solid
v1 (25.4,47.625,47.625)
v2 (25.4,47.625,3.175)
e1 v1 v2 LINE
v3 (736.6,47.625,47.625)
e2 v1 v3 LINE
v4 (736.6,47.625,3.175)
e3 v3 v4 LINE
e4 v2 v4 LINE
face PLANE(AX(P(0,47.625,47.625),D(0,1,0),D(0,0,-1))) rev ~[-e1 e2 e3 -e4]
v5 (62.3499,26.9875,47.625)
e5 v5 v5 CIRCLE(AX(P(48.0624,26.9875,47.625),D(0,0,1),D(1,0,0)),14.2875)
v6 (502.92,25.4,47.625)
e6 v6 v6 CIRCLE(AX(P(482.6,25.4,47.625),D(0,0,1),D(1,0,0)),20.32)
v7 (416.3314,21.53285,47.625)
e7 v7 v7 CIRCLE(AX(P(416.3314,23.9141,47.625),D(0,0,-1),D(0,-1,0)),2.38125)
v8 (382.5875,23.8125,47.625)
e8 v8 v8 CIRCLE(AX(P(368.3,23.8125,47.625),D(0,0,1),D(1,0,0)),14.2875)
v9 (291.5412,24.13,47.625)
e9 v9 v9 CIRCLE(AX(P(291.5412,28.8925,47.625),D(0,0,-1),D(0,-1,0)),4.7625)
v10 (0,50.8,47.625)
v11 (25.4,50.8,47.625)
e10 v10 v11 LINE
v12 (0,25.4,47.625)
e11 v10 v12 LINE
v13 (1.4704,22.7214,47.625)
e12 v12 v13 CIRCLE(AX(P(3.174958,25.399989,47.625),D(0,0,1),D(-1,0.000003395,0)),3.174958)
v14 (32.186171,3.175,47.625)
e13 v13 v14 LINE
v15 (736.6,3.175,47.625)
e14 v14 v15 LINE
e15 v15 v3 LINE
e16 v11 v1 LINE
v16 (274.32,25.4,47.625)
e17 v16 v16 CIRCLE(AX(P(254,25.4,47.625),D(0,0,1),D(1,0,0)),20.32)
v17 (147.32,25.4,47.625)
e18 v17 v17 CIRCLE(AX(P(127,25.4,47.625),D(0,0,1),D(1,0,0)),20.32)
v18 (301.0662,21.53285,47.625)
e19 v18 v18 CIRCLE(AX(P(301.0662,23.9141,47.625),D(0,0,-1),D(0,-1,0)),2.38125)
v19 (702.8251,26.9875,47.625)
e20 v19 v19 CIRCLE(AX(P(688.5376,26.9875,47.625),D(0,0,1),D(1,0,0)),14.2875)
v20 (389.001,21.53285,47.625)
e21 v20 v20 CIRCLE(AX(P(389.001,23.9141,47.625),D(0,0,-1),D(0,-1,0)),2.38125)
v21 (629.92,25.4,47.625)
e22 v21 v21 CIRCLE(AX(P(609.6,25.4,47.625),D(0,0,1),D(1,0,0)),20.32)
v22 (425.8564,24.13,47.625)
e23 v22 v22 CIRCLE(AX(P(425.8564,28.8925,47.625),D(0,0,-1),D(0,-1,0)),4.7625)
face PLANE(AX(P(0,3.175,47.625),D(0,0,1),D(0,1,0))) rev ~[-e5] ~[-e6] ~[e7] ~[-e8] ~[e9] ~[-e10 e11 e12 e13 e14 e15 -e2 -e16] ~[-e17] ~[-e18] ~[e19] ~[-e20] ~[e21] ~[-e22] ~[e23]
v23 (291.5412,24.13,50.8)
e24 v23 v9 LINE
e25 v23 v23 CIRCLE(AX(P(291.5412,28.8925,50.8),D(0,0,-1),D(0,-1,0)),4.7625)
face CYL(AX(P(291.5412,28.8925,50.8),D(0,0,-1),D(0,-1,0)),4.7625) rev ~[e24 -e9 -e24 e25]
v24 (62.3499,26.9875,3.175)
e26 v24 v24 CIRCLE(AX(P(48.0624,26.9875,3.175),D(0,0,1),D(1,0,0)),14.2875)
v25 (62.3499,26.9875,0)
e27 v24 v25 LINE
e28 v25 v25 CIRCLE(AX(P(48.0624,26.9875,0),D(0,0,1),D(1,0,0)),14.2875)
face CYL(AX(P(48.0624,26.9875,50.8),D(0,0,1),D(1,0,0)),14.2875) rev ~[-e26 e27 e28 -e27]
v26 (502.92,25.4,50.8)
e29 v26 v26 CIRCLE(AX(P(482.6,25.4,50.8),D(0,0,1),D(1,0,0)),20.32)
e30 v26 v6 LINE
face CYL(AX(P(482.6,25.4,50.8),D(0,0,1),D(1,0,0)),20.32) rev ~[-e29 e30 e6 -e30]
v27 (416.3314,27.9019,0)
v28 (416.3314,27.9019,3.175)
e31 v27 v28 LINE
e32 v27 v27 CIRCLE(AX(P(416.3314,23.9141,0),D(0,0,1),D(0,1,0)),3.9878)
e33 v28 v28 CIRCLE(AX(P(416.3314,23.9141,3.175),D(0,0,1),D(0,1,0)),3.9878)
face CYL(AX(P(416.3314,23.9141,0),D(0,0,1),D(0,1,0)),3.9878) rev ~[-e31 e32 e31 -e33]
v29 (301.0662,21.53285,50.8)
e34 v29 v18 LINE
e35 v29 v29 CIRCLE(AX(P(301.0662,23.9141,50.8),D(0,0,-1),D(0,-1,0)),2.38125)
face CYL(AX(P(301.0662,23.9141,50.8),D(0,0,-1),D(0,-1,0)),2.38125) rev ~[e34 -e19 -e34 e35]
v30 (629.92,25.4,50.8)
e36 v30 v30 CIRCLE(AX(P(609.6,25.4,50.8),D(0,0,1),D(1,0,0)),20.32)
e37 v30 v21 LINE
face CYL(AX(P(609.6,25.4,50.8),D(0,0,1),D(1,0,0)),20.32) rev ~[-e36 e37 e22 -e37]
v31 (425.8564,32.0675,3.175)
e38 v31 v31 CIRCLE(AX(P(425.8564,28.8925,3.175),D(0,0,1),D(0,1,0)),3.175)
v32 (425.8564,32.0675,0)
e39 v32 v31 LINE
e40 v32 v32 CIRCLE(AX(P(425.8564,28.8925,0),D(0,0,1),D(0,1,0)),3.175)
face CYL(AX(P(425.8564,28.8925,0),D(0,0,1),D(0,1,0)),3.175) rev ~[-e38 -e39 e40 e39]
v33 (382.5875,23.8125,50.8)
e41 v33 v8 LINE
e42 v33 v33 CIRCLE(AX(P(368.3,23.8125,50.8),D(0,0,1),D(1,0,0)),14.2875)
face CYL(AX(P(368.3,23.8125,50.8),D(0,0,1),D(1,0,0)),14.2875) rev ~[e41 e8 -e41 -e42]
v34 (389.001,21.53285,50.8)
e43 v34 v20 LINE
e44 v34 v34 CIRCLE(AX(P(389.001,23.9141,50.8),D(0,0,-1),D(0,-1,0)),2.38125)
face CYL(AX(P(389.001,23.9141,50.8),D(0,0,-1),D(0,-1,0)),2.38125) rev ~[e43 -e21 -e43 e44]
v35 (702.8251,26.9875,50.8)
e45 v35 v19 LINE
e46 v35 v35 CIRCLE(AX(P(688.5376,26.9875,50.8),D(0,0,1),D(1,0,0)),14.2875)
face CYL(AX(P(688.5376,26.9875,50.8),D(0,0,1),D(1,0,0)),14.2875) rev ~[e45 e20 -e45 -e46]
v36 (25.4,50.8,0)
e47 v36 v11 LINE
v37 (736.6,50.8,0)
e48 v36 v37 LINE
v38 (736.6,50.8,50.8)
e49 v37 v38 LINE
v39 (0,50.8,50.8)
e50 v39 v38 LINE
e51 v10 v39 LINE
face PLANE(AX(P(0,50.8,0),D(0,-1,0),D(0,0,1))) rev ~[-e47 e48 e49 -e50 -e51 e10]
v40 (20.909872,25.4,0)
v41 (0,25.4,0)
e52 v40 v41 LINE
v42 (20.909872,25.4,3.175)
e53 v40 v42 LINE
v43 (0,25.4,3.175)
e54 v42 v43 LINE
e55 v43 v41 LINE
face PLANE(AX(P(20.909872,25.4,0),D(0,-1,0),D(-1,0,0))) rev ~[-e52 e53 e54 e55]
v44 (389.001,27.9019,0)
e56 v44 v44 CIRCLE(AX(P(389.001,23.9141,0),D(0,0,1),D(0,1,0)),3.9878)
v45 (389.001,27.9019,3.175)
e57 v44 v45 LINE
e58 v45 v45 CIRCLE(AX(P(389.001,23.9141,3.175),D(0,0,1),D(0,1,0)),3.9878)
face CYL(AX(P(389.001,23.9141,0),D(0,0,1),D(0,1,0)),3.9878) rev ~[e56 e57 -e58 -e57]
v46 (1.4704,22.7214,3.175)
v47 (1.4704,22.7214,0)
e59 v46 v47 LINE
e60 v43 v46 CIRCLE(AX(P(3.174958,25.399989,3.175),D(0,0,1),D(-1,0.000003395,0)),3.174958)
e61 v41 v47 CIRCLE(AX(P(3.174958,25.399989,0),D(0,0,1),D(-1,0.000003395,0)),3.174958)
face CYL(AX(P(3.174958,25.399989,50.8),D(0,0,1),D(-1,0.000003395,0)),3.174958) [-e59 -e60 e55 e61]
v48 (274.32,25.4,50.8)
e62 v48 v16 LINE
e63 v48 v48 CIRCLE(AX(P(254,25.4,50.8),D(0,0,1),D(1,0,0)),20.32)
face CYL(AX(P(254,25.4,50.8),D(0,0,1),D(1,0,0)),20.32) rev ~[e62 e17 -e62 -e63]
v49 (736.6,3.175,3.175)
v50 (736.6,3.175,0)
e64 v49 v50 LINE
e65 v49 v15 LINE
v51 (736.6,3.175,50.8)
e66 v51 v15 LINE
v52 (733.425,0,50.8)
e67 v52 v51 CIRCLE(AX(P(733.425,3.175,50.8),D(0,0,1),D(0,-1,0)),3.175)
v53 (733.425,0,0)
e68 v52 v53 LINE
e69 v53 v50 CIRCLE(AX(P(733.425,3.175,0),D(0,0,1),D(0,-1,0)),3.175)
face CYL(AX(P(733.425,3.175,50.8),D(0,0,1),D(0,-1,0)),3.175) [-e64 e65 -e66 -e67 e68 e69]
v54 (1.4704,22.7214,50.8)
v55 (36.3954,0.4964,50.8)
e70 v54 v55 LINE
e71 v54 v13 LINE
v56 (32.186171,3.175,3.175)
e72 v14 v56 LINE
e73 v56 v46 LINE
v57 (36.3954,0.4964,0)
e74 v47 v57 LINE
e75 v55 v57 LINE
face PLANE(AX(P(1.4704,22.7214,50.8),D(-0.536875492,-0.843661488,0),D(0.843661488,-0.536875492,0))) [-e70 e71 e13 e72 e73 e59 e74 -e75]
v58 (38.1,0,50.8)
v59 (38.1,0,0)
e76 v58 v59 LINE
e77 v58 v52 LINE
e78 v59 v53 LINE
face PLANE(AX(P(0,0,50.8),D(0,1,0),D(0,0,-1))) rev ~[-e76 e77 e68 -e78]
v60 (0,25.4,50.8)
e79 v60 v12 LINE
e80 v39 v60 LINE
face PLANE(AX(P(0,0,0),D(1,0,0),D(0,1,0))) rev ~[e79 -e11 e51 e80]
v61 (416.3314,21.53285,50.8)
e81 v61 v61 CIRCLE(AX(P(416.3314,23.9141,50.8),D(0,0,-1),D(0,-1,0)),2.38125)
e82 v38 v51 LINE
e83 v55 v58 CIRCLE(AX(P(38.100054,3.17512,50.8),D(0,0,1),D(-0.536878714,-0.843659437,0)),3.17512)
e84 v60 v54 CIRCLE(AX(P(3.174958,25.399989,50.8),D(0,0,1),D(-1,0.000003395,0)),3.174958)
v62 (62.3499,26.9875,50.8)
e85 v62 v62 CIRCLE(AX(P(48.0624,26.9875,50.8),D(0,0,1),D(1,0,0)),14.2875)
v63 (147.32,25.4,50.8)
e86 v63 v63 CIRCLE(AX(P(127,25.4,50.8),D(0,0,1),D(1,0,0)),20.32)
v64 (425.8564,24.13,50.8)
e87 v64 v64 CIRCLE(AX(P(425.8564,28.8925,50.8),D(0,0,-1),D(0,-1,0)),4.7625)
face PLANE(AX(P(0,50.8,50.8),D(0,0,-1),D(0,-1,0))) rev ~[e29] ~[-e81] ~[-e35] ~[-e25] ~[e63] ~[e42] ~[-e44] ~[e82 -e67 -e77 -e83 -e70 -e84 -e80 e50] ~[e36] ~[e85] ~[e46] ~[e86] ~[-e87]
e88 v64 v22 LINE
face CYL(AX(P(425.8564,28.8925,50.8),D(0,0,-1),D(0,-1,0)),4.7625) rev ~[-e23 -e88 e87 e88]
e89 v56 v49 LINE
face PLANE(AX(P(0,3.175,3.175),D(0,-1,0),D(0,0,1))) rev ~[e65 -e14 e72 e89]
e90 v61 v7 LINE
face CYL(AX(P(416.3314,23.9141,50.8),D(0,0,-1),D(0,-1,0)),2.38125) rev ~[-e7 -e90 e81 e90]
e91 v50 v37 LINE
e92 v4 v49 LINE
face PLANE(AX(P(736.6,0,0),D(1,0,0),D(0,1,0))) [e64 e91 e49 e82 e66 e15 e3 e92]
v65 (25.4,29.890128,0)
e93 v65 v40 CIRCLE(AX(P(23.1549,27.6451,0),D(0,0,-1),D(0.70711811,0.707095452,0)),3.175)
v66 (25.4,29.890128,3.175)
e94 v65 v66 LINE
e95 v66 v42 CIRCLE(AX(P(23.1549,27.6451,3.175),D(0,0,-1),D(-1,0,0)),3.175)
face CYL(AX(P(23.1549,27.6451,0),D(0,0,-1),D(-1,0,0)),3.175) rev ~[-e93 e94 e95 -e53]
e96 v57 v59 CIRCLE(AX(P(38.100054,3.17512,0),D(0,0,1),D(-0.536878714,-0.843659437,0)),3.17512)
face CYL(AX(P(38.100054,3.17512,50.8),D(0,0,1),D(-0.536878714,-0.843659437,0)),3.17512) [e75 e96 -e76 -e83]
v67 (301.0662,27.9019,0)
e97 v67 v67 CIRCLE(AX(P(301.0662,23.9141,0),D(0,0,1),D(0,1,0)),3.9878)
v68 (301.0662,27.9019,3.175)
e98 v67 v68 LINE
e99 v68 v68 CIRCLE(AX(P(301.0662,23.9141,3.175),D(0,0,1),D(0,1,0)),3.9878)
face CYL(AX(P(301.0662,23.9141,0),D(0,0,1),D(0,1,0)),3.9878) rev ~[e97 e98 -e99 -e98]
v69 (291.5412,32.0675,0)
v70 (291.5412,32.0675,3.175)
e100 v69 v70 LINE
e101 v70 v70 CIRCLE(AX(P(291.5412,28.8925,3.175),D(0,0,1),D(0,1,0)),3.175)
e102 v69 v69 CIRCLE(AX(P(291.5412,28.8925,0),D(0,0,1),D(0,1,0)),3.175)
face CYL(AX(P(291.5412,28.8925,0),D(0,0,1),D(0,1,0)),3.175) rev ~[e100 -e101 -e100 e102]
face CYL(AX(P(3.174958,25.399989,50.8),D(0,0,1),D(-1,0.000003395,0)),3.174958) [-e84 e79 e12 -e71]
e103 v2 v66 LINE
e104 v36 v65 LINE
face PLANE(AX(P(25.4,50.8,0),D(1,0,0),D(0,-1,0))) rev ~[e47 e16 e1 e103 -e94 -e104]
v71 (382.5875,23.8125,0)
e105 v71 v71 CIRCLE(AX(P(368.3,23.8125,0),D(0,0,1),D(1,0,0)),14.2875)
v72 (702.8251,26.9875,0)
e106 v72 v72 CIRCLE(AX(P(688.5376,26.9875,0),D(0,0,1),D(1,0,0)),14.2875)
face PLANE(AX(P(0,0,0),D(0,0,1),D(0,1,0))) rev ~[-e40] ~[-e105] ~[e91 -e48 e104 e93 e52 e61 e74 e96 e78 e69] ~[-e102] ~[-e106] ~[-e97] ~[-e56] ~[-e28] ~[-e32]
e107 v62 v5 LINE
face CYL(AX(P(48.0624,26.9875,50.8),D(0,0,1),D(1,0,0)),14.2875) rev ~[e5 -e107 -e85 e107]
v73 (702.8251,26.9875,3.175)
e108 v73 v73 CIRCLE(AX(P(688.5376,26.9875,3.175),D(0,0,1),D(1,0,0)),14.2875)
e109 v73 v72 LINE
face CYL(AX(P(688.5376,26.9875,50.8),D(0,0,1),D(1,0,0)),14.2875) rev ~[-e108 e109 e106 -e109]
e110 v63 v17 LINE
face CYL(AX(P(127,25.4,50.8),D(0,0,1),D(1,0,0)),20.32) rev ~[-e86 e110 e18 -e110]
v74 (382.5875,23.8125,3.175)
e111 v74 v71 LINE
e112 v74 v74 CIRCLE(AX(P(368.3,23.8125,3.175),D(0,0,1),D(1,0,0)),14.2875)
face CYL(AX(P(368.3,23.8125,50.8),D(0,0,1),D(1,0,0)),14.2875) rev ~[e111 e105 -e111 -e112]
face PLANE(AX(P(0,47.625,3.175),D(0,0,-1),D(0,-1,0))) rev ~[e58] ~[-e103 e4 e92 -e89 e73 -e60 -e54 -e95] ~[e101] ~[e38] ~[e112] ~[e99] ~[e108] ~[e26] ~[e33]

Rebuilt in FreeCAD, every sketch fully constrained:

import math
import FreeCAD as App
import Part
import Sketcher
from FreeCAD import Vector
Q = App.Units.Quantity

doc = App.newDocument("Part")
body = doc.addObject("PartDesign::Body", "Body")

sketch1 = doc.addObject("Sketcher::SketchObject", "Sketch")
body.addObject(sketch1)
sketch1.AttachmentSupport = (doc.YZ_Plane, [""])
sketch1.MapMode = "FlatFace"
sketch1.addGeometry([
    Part.LineSegment(Vector(0, 51, 0), Vector(0, 0, 0)),
    Part.LineSegment(Vector(0, 0, 0), Vector(51, 0, 0)),
    Part.LineSegment(Vector(51, 0, 0), Vector(51, 51, 0)),
    Part.LineSegment(Vector(51, 51, 0), Vector(0, 51, 0)),
    Part.LineSegment(Vector(3, 3, 0), Vector(3, 48, 0)),
    Part.LineSegment(Vector(3, 48, 0), Vector(48, 48, 0)),
    Part.LineSegment(Vector(48, 48, 0), Vector(48, 3, 0)),
    Part.LineSegment(Vector(48, 3, 0), Vector(3, 3, 0)),
], False)
sketch1.addConstraint([
    Sketcher.Constraint("Coincident", 0, 2, 1, 1),
    Sketcher.Constraint("Coincident", 1, 2, 2, 1),
    Sketcher.Constraint("Coincident", 2, 2, 3, 1),
    Sketcher.Constraint("Coincident", 3, 2, 0, 1),
    Sketcher.Constraint("Coincident", 4, 2, 5, 1),
    Sketcher.Constraint("Coincident", 5, 2, 6, 1),
    Sketcher.Constraint("Coincident", 6, 2, 7, 1),
    Sketcher.Constraint("Coincident", 7, 2, 4, 1),
    Sketcher.Constraint("Vertical", 0),
    Sketcher.Constraint("Horizontal", 1),
    Sketcher.Constraint("Vertical", 2),
    Sketcher.Constraint("Horizontal", 3),
    Sketcher.Constraint("Vertical", 4),
    Sketcher.Constraint("Horizontal", 5),
    Sketcher.Constraint("Vertical", 6),
    Sketcher.Constraint("Horizontal", 7),
    Sketcher.Constraint("Coincident", 0, 2, -1, 1),
    Sketcher.Constraint("Equal", 3, 0),
    Sketcher.Constraint("Equal", 7, 4),
    Sketcher.Constraint("DistanceX", 1, 1, 1, 2, Q("2 in")),
    Sketcher.Constraint("DistanceX", -1, 1, 4, 2, Q("0.125 in")),
    Sketcher.Constraint("DistanceY", -1, 1, 6, 2, Q("0.125 in")),
    Sketcher.Constraint("DistanceY", 4, 2, 3, 2, Q("0.125 in")),
])
pad1 = doc.addObject("PartDesign::Pad", "Pad")
body.addObject(pad1)
pad1.Profile = sketch1
pad1.Length = Q("29 in")

sketch2 = doc.addObject("Sketcher::SketchObject", "Sketch001")
body.addObject(sketch2)
sketch2.AttachmentSupport = (doc.XY_Plane, [""])
sketch2.MapMode = "FlatFace"
sketch2.AttachmentOffset = App.Placement(Vector(0, 0, 2 * 25.4), App.Rotation())
sketch2.addGeometry([
    Part.ArcOfCircle(Part.Circle(Vector(3.2, 25.4, 0), Vector(0, 0, 1), 3.2), math.radians(180), math.radians(238)),
    Part.LineSegment(Vector(0, 25.4, 0), Vector(0, 0, 0)),
    Part.LineSegment(Vector(0, 0, 0), Vector(38.1, 0, 0)),
    Part.ArcOfCircle(Part.Circle(Vector(38.1, 3.2, 0), Vector(0, 0, 1), 3.2), math.radians(-122), math.radians(-90)),
    Part.LineSegment(Vector(36.4, 0.5, 0), Vector(1.5, 22.7, 0)),
    Part.LineSegment(Vector(736.6, 0, 0), Vector(736.6, 3.2, 0)),
    Part.ArcOfCircle(Part.Circle(Vector(733.4, 3.2, 0), Vector(0, 0, 1), 3.2), math.radians(-90), math.radians(0)),
    Part.LineSegment(Vector(733.4, 0, 0), Vector(736.6, 0, 0)),
    Part.Circle(Vector(48.1, 27, 0), Vector(0, 0, 1), 14.3),
    Part.Circle(Vector(368.3, 23.8, 0), Vector(0, 0, 1), 14.3),
    Part.Circle(Vector(688.5, 27, 0), Vector(0, 0, 1), 14.3),
], False)
sketch2.addConstraint([
    Sketcher.Constraint("Tangent", 0, 1, 1, 1),
    Sketcher.Constraint("Coincident", 1, 2, 2, 1),
    Sketcher.Constraint("Tangent", 2, 2, 3, 2),
    Sketcher.Constraint("Tangent", 3, 1, 4, 1),
    Sketcher.Constraint("Tangent", 4, 2, 0, 2),
    Sketcher.Constraint("Tangent", 5, 2, 6, 2),
    Sketcher.Constraint("Tangent", 6, 1, 7, 1),
    Sketcher.Constraint("Coincident", 7, 2, 5, 1),
    Sketcher.Constraint("Vertical", 1),
    Sketcher.Constraint("Horizontal", 2),
    Sketcher.Constraint("Vertical", 5),
    Sketcher.Constraint("Horizontal", 7),
    Sketcher.Constraint("Coincident", 1, 2, -1, 1),
    Sketcher.Constraint("Equal", 0, 3),
    Sketcher.Constraint("Equal", 3, 6),
    Sketcher.Constraint("Equal", 8, 9),
    Sketcher.Constraint("Equal", 9, 10),
    Sketcher.Constraint("PointOnObject", 6, 1, -1),
    Sketcher.Constraint("Horizontal", 8, 3, 10, 3),
    Sketcher.Constraint("DistanceY", 1, 2, 1, 1, Q("1 in")),
    Sketcher.Constraint("Diameter", 8, Q("1.125 in")),
    Sketcher.Constraint("DistanceX", 2, 1, 2, 2, Q("1.5 in")),
    Sketcher.Constraint("Radius", 0, Q("0.125 in")),
    Sketcher.Constraint("DistanceX", -1, 1, 9, 3, Q("14.5 in")),
    Sketcher.Constraint("DistanceX", 9, 3, 5, 2, Q("14.5 in")),
    Sketcher.Constraint("DistanceY", -1, 1, 9, 3, Q("0.9375 in")),
    Sketcher.Constraint("DistanceY", 3, 3, 8, 3, Q("0.9375 in")),
    Sketcher.Constraint("DistanceX", -1, 1, 8, 3, Q("48.0624 mm")),
    Sketcher.Constraint("DistanceX", -1, 1, 10, 3, Q("688.5376 mm")),
])
pocket1 = doc.addObject("PartDesign::Pocket", "Pocket")
body.addObject(pocket1)
pocket1.Profile = sketch2
pocket1.Length = Q("2 in")

sketch3 = doc.addObject("Sketcher::SketchObject", "Sketch002")
body.addObject(sketch3)
sketch3.AttachmentSupport = (doc.XY_Plane, [""])
sketch3.MapMode = "FlatFace"
sketch3.addGeometry([
    Part.LineSegment(Vector(0, 25.4, 0), Vector(0, 50.8, 0)),
    Part.LineSegment(Vector(0, 50.8, 0), Vector(25.4, 50.8, 0)),
    Part.LineSegment(Vector(25.4, 50.8, 0), Vector(25.4, 29.9, 0)),
    Part.ArcOfCircle(Part.Circle(Vector(23.2, 27.6, 0), Vector(0, 0, 1), 3.2), math.radians(-135), math.radians(45)),
    Part.LineSegment(Vector(20.9, 25.4, 0), Vector(0, 25.4, 0)),
], False)
sketch3.addConstraint([
    Sketcher.Constraint("Coincident", 0, 2, 1, 1),
    Sketcher.Constraint("Coincident", 1, 2, 2, 1),
    Sketcher.Constraint("Coincident", 2, 2, 3, 2),
    Sketcher.Constraint("Coincident", 3, 1, 4, 1),
    Sketcher.Constraint("Coincident", 4, 2, 0, 1),
    Sketcher.Constraint("Vertical", 0),
    Sketcher.Constraint("Horizontal", 1),
    Sketcher.Constraint("Vertical", 2),
    Sketcher.Constraint("Horizontal", 4),
    Sketcher.Constraint("PointOnObject", 0, 2, -2),
    Sketcher.Constraint("Equal", 1, 0),
    Sketcher.Constraint("Equal", 4, 2),
    Sketcher.Constraint("DistanceX", 1, 1, 1, 2, Q("1 in")),
    Sketcher.Constraint("DistanceY", -1, 1, 3, 1, Q("1 in")),
    Sketcher.Constraint("Radius", 3, Q("0.125 in")),
    Sketcher.Constraint("DistanceX", -1, 1, 3, 3, Q("0.9116 in")),
])
pocket2 = doc.addObject("PartDesign::Pocket", "Pocket001")
body.addObject(pocket2)
pocket2.Profile = sketch3
pocket2.Length = Q("1.875 in")
pocket2.Reversed = True

sketch4 = doc.addObject("Sketcher::SketchObject", "Sketch003")
body.addObject(sketch4)
sketch4.AttachmentSupport = (doc.XY_Plane, [""])
sketch4.MapMode = "FlatFace"
sketch4.AttachmentOffset = App.Placement(Vector(0, 0, 2 * 25.4), App.Rotation())
sketch4.addGeometry([
    Part.Circle(Vector(127, 25, 0), Vector(0, 0, 1), 20),
    Part.Circle(Vector(254, 25, 0), Vector(0, 0, 1), 20),
    Part.Circle(Vector(483, 25, 0), Vector(0, 0, 1), 20),
    Part.Circle(Vector(610, 25, 0), Vector(0, 0, 1), 20),
], False)
sketch4.addConstraint([
    Sketcher.Constraint("Equal", 0, 1),
    Sketcher.Constraint("Equal", 1, 2),
    Sketcher.Constraint("Equal", 2, 3),
    Sketcher.Constraint("Horizontal", 0, 3, 1, 3),
    Sketcher.Constraint("Horizontal", 1, 3, 2, 3),
    Sketcher.Constraint("Horizontal", 2, 3, 3, 3),
    Sketcher.Constraint("Diameter", 0, Q("1.6 in")),
    Sketcher.Constraint("DistanceX", -1, 1, 0, 3, Q("5 in")),
    Sketcher.Constraint("DistanceY", -1, 1, 0, 3, Q("1 in")),
    Sketcher.Constraint("DistanceX", 0, 3, 1, 3, Q("5 in")),
    Sketcher.Constraint("DistanceX", 2, 3, 3, 3, Q("5 in")),
    Sketcher.Constraint("DistanceX", -1, 1, 2, 3, Q("19 in")),
])
pocket3 = doc.addObject("PartDesign::Pocket", "Pocket002")
body.addObject(pocket3)
pocket3.Profile = sketch4
pocket3.Length = Q("0.125 in")

sketch5 = doc.addObject("Sketcher::SketchObject", "Sketch004")
body.addObject(sketch5)
sketch5.AttachmentSupport = (doc.XY_Plane, [""])
sketch5.MapMode = "FlatFace"
sketch5.addGeometry([
    Part.Circle(Vector(301.1, 23.9, 0), Vector(0, 0, 1), 4),
    Part.Circle(Vector(389, 23.9, 0), Vector(0, 0, 1), 4),
    Part.Circle(Vector(416.3, 23.9, 0), Vector(0, 0, 1), 4),
], False)
sketch5.addConstraint([
    Sketcher.Constraint("Equal", 0, 1),
    Sketcher.Constraint("Equal", 1, 2),
    Sketcher.Constraint("Horizontal", 0, 3, 1, 3),
    Sketcher.Constraint("Horizontal", 1, 3, 2, 3),
    Sketcher.Constraint("Diameter", 0, Q("0.314 in")),
    Sketcher.Constraint("DistanceX", -1, 1, 0, 3, Q("11.853 in")),
    Sketcher.Constraint("DistanceX", -1, 1, 1, 3, Q("15.315 in")),
    Sketcher.Constraint("DistanceX", -1, 1, 2, 3, Q("16.391 in")),
    Sketcher.Constraint("DistanceY", -1, 1, 0, 3, Q("0.9415 in")),
])
doc.recompute()
hole = doc.addObject("PartDesign::Hole", "Hole")
body.addObject(hole)
hole.Profile = sketch5
hole.ThreadType = "None"
hole.Diameter = Q("0.314 in")
hole.DepthType = "Dimension"
hole.Depth = Q("1 in")
hole.DrillPoint = "Angled"
hole.DrillPointAngle = 118
hole.Reversed = True

sketch6 = doc.addObject("Sketcher::SketchObject", "Sketch005")
body.addObject(sketch6)
sketch6.AttachmentSupport = (doc.XY_Plane, [""])
sketch6.MapMode = "FlatFace"
sketch6.addGeometry([
    Part.Circle(Vector(425.9, 28.9, 0), Vector(0, 0, 1), 3.2),
    Part.Circle(Vector(291.5, 28.9, 0), Vector(0, 0, 1), 3.2),
], False)
sketch6.addConstraint([
    Sketcher.Constraint("Equal", 0, 1),
    Sketcher.Constraint("Horizontal", 0, 3, 1, 3),
    Sketcher.Constraint("Diameter", 0, Q("0.25 in")),
    Sketcher.Constraint("DistanceX", -1, 1, 0, 3, Q("16.766 in")),
    Sketcher.Constraint("DistanceX", -1, 1, 1, 3, Q("11.478 in")),
    Sketcher.Constraint("DistanceY", -1, 1, 0, 3, Q("1.1375 in")),
])
doc.recompute()
hole2 = doc.addObject("PartDesign::Hole", "Hole001")
body.addObject(hole2)
hole2.Profile = sketch6
hole2.ThreadType = "None"
hole2.Diameter = Q("0.25 in")
hole2.DepthType = "Dimension"
hole2.Depth = Q("1 in")
hole2.DrillPoint = "Angled"
hole2.DrillPointAngle = 118
hole2.Reversed = True

sketch7 = doc.addObject("Sketcher::SketchObject", "Sketch006")
body.addObject(sketch7)
sketch7.AttachmentSupport = (doc.XY_Plane, [""])
sketch7.MapMode = "FlatFace"
sketch7.AttachmentOffset = App.Placement(Vector(0, 0, 2 * 25.4), App.Rotation())
sketch7.addGeometry([
    Part.Circle(Vector(301.1, 23.9, 0), Vector(0, 0, 1), 2.4),
    Part.Circle(Vector(389, 23.9, 0), Vector(0, 0, 1), 2.4),
    Part.Circle(Vector(416.3, 23.9, 0), Vector(0, 0, 1), 2.4),
], False)
sketch7.addConstraint([
    Sketcher.Constraint("Equal", 0, 1),
    Sketcher.Constraint("Equal", 1, 2),
    Sketcher.Constraint("Horizontal", 0, 3, 1, 3),
    Sketcher.Constraint("Horizontal", 1, 3, 2, 3),
    Sketcher.Constraint("Diameter", 0, Q("0.1875 in")),
    Sketcher.Constraint("DistanceX", -1, 1, 0, 3, Q("11.853 in")),
    Sketcher.Constraint("DistanceX", -1, 1, 1, 3, Q("15.315 in")),
    Sketcher.Constraint("DistanceX", -1, 1, 2, 3, Q("16.391 in")),
    Sketcher.Constraint("DistanceY", -1, 1, 0, 3, Q("0.9415 in")),
])
doc.recompute()
hole3 = doc.addObject("PartDesign::Hole", "Hole002")
body.addObject(hole3)
hole3.Profile = sketch7
hole3.ThreadType = "None"
hole3.Diameter = Q("0.1875 in")
hole3.DepthType = "Dimension"
hole3.Depth = Q("1 in")
hole3.DrillPoint = "Angled"
hole3.DrillPointAngle = 118

sketch8 = doc.addObject("Sketcher::SketchObject", "Sketch007")
body.addObject(sketch8)
sketch8.AttachmentSupport = (doc.XY_Plane, [""])
sketch8.MapMode = "FlatFace"
sketch8.AttachmentOffset = App.Placement(Vector(0, 0, 2 * 25.4), App.Rotation())
sketch8.addGeometry([
    Part.Circle(Vector(291.5, 28.9, 0), Vector(0, 0, 1), 4.8),
    Part.Circle(Vector(425.9, 28.9, 0), Vector(0, 0, 1), 4.8),
], False)
sketch8.addConstraint([
    Sketcher.Constraint("Equal", 0, 1),
    Sketcher.Constraint("Horizontal", 0, 3, 1, 3),
    Sketcher.Constraint("Diameter", 0, Q("0.375 in")),
    Sketcher.Constraint("DistanceX", -1, 1, 0, 3, Q("11.478 in")),
    Sketcher.Constraint("DistanceX", -1, 1, 1, 3, Q("16.766 in")),
    Sketcher.Constraint("DistanceY", -1, 1, 0, 3, Q("1.1375 in")),
])
doc.recompute()
hole4 = doc.addObject("PartDesign::Hole", "Hole003")
body.addObject(hole4)
hole4.Profile = sketch8
hole4.ThreadType = "None"
hole4.Diameter = Q("0.375 in")
hole4.DepthType = "Dimension"
hole4.Depth = Q("1 in")
hole4.DrillPoint = "Angled"
hole4.DrillPointAngle = 118

doc.recompute()
